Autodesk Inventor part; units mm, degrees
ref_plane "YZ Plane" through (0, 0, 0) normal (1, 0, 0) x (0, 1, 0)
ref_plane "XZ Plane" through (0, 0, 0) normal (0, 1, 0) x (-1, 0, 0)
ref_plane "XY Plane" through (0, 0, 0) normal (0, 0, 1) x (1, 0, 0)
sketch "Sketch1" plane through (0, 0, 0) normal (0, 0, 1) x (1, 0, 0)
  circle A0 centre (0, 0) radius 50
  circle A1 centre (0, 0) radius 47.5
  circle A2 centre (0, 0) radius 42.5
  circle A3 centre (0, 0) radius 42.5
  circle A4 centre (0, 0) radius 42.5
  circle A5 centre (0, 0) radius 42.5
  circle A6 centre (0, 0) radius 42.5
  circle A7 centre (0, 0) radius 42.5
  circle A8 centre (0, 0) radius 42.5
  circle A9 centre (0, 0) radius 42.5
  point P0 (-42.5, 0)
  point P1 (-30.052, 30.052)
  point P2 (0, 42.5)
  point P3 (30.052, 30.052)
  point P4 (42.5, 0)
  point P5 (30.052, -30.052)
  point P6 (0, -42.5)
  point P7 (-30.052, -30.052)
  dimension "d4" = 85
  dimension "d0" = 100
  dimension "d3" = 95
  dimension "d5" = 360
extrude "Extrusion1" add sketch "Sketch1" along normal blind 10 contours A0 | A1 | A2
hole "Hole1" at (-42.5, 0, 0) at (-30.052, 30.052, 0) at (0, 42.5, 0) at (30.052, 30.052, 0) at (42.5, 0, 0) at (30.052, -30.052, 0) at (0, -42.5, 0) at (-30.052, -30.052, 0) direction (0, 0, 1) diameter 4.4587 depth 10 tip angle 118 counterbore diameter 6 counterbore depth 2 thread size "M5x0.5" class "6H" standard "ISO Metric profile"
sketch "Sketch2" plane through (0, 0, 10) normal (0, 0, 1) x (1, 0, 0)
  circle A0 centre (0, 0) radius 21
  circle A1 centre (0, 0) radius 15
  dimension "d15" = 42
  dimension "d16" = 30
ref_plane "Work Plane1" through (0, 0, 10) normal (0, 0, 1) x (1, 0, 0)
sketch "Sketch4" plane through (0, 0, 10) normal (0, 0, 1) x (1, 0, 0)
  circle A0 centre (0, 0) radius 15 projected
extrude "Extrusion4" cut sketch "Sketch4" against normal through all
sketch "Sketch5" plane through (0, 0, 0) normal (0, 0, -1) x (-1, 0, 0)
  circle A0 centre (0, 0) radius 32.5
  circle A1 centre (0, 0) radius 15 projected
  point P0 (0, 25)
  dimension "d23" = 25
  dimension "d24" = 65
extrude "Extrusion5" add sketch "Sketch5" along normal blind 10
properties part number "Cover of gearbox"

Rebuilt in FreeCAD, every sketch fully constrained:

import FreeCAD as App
import Part
import Sketcher
from FreeCAD import Vector

doc = App.newDocument("Part")
params = doc.addObject("Spreadsheet::Sheet", "Params")
for row, (alias, value) in enumerate([
    ("sketch1_diameter", "100 mm"),
    ("pad1_length", "10 mm"),
    ("hole_diameter", "4.4587 mm"),
    ("hole_depth", "10 mm"),
    ("hole_cbore_diameter", "6 mm"),
    ("hole_cbore_depth", "2 mm"),
    ("sketch3_diameter", "30 mm"),
    ("sketch4_diameter", "65 mm"),
    ("sketch4_diameter2", "30 mm"),
    ("pad2_length", "10 mm"),
], start=1):
    params.set(f"A{row}", alias)
    params.set(f"B{row}", "=" + value)
    params.setAlias(f"B{row}", alias)

body = doc.addObject("PartDesign::Body", "Body")

# Sketch on XY plane
sketch1 = body.newObject("Sketcher::SketchObject", "Sketch")
sketch1.AttachmentSupport = (doc.getObject("XY_Plane"), [""])
sketch1.MapMode = "FlatFace"
sketch1.addGeometry(Part.Circle(Vector(0, 0, 0), Vector(0, 0, 1), 50), False)
sketch1.addConstraint([
    Sketcher.Constraint("Coincident", 0, 3, -1, 1),
    Sketcher.Constraint("Diameter", 0, 100.0),
])
sketch1.setExpression("Constraints[1]", "Params.sketch1_diameter")
pad1 = body.newObject("PartDesign::Pad", "Pad")
pad1.Profile = sketch1
pad1.setExpression("Length", "Params.pad1_length")

# Sketch on XY plane
sketch2 = body.newObject("Sketcher::SketchObject", "Sketch001")
sketch2.AttachmentSupport = (doc.getObject("XY_Plane"), [""])
sketch2.MapMode = "FlatFace"
sketch2.addGeometry([
    Part.Circle(Vector(-42.5, 0, 0), Vector(0, 0, 1), 2.2),  # 0
    Part.Circle(Vector(-30.1, 30.1, 0), Vector(0, 0, 1), 2.2),  # 1
    Part.Circle(Vector(0, 42.5, 0), Vector(0, 0, 1), 2.2),  # 2
    Part.Circle(Vector(30.1, 30.1, 0), Vector(0, 0, 1), 2.2),  # 3
    Part.Circle(Vector(42.5, 0, 0), Vector(0, 0, 1), 2.2),  # 4
    Part.Circle(Vector(30.1, -30.1, 0), Vector(0, 0, 1), 2.2),  # 5
    Part.Circle(Vector(0, -42.5, 0), Vector(0, 0, 1), 2.2),  # 6
    Part.Circle(Vector(-30.1, -30.1, 0), Vector(0, 0, 1), 2.2),  # 7
], False)
sketch2.addConstraint([
    Sketcher.Constraint("Equal", 0, 1),
    Sketcher.Constraint("Equal", 1, 2),
    Sketcher.Constraint("Equal", 2, 3),
    Sketcher.Constraint("Equal", 3, 4),
    Sketcher.Constraint("Equal", 4, 5),
    Sketcher.Constraint("Equal", 5, 6),
    Sketcher.Constraint("Equal", 6, 7),
    Sketcher.Constraint("Symmetric", 0, 3, 4, 3, -1, 1),
    Sketcher.Constraint("Symmetric", 1, 3, 5, 3, -1, 1),
    Sketcher.Constraint("Symmetric", 2, 3, 6, 3, -1, 1),
    Sketcher.Constraint("Symmetric", 3, 3, 7, 3, -1, 1),
    Sketcher.Constraint("Symmetric", 1, 3, 3, 3, -2),
    Sketcher.Constraint("PointOnObject", 0, 3, -1),
    Sketcher.Constraint("PointOnObject", 2, 3, -2),
    Sketcher.Constraint("DistanceX", 0, 3, 4, 3, 85.0),
    Sketcher.Constraint("Diameter", 0, 4.4587),
    Sketcher.Constraint("DistanceY", -1, 1, 2, 3, 42.5),
    Sketcher.Constraint("DistanceX", 1, 3, -1, 1, 30.052),
    Sketcher.Constraint("DistanceY", -1, 1, 1, 3, 30.052),
])
doc.recompute()
hole = body.newObject("PartDesign::Hole", "Hole")
hole.Profile = sketch2
hole.ThreadType = "None"
hole.setExpression("Diameter", "Params.hole_diameter")
hole.DepthType = "Dimension"
hole.setExpression("Depth", "Params.hole_depth")
hole.DrillPoint = "Angled"
hole.DrillPointAngle = 118
hole.HoleCutType = "Counterbore"
hole.setExpression("HoleCutDiameter", "Params.hole_cbore_diameter")
hole.setExpression("HoleCutDepth", "Params.hole_cbore_depth")
hole.Reversed = True

# Sketch on XY plane
sketch3 = body.newObject("Sketcher::SketchObject", "Sketch002")
sketch3.AttachmentSupport = (doc.getObject("XY_Plane"), [""])
sketch3.MapMode = "FlatFace"
sketch3.AttachmentOffset = App.Placement(Vector(0, 0, 10), App.Rotation())
sketch3.addGeometry(Part.Circle(Vector(0, 0, 0), Vector(0, 0, 1), 15), False)
sketch3.addConstraint([
    Sketcher.Constraint("Coincident", 0, 3, -1, 1),
    Sketcher.Constraint("Diameter", 0, 30.0),
])
sketch3.setExpression("Constraints[1]", "Params.sketch3_diameter")
pocket1 = body.newObject("PartDesign::Pocket", "Pocket")
pocket1.Profile = sketch3
pocket1.Type = "ThroughAll"

# Sketch on XY plane
sketch4 = body.newObject("Sketcher::SketchObject", "Sketch003")
sketch4.AttachmentSupport = (doc.getObject("XY_Plane"), [""])
sketch4.MapMode = "FlatFace"
sketch4.addGeometry([
    Part.Circle(Vector(0, 0, 0), Vector(0, 0, 1), 32),
    Part.Circle(Vector(0, 0, 0), Vector(0, 0, 1), 15),
], False)
sketch4.addConstraint([
    Sketcher.Constraint("Coincident", 0, 3, -1, 1),
    Sketcher.Constraint("Coincident", 1, 3, -1, 1),
    Sketcher.Constraint("Diameter", 0, 65.0),
    Sketcher.Constraint("Diameter", 1, 30.0),
])
sketch4.setExpression("Constraints[2]", "Params.sketch4_diameter")
sketch4.setExpression("Constraints[3]", "Params.sketch4_diameter2")
pad2 = body.newObject("PartDesign::Pad", "Pad001")
pad2.Profile = sketch4
pad2.setExpression("Length", "Params.pad2_length")
pad2.Reversed = True

doc.recompute()
